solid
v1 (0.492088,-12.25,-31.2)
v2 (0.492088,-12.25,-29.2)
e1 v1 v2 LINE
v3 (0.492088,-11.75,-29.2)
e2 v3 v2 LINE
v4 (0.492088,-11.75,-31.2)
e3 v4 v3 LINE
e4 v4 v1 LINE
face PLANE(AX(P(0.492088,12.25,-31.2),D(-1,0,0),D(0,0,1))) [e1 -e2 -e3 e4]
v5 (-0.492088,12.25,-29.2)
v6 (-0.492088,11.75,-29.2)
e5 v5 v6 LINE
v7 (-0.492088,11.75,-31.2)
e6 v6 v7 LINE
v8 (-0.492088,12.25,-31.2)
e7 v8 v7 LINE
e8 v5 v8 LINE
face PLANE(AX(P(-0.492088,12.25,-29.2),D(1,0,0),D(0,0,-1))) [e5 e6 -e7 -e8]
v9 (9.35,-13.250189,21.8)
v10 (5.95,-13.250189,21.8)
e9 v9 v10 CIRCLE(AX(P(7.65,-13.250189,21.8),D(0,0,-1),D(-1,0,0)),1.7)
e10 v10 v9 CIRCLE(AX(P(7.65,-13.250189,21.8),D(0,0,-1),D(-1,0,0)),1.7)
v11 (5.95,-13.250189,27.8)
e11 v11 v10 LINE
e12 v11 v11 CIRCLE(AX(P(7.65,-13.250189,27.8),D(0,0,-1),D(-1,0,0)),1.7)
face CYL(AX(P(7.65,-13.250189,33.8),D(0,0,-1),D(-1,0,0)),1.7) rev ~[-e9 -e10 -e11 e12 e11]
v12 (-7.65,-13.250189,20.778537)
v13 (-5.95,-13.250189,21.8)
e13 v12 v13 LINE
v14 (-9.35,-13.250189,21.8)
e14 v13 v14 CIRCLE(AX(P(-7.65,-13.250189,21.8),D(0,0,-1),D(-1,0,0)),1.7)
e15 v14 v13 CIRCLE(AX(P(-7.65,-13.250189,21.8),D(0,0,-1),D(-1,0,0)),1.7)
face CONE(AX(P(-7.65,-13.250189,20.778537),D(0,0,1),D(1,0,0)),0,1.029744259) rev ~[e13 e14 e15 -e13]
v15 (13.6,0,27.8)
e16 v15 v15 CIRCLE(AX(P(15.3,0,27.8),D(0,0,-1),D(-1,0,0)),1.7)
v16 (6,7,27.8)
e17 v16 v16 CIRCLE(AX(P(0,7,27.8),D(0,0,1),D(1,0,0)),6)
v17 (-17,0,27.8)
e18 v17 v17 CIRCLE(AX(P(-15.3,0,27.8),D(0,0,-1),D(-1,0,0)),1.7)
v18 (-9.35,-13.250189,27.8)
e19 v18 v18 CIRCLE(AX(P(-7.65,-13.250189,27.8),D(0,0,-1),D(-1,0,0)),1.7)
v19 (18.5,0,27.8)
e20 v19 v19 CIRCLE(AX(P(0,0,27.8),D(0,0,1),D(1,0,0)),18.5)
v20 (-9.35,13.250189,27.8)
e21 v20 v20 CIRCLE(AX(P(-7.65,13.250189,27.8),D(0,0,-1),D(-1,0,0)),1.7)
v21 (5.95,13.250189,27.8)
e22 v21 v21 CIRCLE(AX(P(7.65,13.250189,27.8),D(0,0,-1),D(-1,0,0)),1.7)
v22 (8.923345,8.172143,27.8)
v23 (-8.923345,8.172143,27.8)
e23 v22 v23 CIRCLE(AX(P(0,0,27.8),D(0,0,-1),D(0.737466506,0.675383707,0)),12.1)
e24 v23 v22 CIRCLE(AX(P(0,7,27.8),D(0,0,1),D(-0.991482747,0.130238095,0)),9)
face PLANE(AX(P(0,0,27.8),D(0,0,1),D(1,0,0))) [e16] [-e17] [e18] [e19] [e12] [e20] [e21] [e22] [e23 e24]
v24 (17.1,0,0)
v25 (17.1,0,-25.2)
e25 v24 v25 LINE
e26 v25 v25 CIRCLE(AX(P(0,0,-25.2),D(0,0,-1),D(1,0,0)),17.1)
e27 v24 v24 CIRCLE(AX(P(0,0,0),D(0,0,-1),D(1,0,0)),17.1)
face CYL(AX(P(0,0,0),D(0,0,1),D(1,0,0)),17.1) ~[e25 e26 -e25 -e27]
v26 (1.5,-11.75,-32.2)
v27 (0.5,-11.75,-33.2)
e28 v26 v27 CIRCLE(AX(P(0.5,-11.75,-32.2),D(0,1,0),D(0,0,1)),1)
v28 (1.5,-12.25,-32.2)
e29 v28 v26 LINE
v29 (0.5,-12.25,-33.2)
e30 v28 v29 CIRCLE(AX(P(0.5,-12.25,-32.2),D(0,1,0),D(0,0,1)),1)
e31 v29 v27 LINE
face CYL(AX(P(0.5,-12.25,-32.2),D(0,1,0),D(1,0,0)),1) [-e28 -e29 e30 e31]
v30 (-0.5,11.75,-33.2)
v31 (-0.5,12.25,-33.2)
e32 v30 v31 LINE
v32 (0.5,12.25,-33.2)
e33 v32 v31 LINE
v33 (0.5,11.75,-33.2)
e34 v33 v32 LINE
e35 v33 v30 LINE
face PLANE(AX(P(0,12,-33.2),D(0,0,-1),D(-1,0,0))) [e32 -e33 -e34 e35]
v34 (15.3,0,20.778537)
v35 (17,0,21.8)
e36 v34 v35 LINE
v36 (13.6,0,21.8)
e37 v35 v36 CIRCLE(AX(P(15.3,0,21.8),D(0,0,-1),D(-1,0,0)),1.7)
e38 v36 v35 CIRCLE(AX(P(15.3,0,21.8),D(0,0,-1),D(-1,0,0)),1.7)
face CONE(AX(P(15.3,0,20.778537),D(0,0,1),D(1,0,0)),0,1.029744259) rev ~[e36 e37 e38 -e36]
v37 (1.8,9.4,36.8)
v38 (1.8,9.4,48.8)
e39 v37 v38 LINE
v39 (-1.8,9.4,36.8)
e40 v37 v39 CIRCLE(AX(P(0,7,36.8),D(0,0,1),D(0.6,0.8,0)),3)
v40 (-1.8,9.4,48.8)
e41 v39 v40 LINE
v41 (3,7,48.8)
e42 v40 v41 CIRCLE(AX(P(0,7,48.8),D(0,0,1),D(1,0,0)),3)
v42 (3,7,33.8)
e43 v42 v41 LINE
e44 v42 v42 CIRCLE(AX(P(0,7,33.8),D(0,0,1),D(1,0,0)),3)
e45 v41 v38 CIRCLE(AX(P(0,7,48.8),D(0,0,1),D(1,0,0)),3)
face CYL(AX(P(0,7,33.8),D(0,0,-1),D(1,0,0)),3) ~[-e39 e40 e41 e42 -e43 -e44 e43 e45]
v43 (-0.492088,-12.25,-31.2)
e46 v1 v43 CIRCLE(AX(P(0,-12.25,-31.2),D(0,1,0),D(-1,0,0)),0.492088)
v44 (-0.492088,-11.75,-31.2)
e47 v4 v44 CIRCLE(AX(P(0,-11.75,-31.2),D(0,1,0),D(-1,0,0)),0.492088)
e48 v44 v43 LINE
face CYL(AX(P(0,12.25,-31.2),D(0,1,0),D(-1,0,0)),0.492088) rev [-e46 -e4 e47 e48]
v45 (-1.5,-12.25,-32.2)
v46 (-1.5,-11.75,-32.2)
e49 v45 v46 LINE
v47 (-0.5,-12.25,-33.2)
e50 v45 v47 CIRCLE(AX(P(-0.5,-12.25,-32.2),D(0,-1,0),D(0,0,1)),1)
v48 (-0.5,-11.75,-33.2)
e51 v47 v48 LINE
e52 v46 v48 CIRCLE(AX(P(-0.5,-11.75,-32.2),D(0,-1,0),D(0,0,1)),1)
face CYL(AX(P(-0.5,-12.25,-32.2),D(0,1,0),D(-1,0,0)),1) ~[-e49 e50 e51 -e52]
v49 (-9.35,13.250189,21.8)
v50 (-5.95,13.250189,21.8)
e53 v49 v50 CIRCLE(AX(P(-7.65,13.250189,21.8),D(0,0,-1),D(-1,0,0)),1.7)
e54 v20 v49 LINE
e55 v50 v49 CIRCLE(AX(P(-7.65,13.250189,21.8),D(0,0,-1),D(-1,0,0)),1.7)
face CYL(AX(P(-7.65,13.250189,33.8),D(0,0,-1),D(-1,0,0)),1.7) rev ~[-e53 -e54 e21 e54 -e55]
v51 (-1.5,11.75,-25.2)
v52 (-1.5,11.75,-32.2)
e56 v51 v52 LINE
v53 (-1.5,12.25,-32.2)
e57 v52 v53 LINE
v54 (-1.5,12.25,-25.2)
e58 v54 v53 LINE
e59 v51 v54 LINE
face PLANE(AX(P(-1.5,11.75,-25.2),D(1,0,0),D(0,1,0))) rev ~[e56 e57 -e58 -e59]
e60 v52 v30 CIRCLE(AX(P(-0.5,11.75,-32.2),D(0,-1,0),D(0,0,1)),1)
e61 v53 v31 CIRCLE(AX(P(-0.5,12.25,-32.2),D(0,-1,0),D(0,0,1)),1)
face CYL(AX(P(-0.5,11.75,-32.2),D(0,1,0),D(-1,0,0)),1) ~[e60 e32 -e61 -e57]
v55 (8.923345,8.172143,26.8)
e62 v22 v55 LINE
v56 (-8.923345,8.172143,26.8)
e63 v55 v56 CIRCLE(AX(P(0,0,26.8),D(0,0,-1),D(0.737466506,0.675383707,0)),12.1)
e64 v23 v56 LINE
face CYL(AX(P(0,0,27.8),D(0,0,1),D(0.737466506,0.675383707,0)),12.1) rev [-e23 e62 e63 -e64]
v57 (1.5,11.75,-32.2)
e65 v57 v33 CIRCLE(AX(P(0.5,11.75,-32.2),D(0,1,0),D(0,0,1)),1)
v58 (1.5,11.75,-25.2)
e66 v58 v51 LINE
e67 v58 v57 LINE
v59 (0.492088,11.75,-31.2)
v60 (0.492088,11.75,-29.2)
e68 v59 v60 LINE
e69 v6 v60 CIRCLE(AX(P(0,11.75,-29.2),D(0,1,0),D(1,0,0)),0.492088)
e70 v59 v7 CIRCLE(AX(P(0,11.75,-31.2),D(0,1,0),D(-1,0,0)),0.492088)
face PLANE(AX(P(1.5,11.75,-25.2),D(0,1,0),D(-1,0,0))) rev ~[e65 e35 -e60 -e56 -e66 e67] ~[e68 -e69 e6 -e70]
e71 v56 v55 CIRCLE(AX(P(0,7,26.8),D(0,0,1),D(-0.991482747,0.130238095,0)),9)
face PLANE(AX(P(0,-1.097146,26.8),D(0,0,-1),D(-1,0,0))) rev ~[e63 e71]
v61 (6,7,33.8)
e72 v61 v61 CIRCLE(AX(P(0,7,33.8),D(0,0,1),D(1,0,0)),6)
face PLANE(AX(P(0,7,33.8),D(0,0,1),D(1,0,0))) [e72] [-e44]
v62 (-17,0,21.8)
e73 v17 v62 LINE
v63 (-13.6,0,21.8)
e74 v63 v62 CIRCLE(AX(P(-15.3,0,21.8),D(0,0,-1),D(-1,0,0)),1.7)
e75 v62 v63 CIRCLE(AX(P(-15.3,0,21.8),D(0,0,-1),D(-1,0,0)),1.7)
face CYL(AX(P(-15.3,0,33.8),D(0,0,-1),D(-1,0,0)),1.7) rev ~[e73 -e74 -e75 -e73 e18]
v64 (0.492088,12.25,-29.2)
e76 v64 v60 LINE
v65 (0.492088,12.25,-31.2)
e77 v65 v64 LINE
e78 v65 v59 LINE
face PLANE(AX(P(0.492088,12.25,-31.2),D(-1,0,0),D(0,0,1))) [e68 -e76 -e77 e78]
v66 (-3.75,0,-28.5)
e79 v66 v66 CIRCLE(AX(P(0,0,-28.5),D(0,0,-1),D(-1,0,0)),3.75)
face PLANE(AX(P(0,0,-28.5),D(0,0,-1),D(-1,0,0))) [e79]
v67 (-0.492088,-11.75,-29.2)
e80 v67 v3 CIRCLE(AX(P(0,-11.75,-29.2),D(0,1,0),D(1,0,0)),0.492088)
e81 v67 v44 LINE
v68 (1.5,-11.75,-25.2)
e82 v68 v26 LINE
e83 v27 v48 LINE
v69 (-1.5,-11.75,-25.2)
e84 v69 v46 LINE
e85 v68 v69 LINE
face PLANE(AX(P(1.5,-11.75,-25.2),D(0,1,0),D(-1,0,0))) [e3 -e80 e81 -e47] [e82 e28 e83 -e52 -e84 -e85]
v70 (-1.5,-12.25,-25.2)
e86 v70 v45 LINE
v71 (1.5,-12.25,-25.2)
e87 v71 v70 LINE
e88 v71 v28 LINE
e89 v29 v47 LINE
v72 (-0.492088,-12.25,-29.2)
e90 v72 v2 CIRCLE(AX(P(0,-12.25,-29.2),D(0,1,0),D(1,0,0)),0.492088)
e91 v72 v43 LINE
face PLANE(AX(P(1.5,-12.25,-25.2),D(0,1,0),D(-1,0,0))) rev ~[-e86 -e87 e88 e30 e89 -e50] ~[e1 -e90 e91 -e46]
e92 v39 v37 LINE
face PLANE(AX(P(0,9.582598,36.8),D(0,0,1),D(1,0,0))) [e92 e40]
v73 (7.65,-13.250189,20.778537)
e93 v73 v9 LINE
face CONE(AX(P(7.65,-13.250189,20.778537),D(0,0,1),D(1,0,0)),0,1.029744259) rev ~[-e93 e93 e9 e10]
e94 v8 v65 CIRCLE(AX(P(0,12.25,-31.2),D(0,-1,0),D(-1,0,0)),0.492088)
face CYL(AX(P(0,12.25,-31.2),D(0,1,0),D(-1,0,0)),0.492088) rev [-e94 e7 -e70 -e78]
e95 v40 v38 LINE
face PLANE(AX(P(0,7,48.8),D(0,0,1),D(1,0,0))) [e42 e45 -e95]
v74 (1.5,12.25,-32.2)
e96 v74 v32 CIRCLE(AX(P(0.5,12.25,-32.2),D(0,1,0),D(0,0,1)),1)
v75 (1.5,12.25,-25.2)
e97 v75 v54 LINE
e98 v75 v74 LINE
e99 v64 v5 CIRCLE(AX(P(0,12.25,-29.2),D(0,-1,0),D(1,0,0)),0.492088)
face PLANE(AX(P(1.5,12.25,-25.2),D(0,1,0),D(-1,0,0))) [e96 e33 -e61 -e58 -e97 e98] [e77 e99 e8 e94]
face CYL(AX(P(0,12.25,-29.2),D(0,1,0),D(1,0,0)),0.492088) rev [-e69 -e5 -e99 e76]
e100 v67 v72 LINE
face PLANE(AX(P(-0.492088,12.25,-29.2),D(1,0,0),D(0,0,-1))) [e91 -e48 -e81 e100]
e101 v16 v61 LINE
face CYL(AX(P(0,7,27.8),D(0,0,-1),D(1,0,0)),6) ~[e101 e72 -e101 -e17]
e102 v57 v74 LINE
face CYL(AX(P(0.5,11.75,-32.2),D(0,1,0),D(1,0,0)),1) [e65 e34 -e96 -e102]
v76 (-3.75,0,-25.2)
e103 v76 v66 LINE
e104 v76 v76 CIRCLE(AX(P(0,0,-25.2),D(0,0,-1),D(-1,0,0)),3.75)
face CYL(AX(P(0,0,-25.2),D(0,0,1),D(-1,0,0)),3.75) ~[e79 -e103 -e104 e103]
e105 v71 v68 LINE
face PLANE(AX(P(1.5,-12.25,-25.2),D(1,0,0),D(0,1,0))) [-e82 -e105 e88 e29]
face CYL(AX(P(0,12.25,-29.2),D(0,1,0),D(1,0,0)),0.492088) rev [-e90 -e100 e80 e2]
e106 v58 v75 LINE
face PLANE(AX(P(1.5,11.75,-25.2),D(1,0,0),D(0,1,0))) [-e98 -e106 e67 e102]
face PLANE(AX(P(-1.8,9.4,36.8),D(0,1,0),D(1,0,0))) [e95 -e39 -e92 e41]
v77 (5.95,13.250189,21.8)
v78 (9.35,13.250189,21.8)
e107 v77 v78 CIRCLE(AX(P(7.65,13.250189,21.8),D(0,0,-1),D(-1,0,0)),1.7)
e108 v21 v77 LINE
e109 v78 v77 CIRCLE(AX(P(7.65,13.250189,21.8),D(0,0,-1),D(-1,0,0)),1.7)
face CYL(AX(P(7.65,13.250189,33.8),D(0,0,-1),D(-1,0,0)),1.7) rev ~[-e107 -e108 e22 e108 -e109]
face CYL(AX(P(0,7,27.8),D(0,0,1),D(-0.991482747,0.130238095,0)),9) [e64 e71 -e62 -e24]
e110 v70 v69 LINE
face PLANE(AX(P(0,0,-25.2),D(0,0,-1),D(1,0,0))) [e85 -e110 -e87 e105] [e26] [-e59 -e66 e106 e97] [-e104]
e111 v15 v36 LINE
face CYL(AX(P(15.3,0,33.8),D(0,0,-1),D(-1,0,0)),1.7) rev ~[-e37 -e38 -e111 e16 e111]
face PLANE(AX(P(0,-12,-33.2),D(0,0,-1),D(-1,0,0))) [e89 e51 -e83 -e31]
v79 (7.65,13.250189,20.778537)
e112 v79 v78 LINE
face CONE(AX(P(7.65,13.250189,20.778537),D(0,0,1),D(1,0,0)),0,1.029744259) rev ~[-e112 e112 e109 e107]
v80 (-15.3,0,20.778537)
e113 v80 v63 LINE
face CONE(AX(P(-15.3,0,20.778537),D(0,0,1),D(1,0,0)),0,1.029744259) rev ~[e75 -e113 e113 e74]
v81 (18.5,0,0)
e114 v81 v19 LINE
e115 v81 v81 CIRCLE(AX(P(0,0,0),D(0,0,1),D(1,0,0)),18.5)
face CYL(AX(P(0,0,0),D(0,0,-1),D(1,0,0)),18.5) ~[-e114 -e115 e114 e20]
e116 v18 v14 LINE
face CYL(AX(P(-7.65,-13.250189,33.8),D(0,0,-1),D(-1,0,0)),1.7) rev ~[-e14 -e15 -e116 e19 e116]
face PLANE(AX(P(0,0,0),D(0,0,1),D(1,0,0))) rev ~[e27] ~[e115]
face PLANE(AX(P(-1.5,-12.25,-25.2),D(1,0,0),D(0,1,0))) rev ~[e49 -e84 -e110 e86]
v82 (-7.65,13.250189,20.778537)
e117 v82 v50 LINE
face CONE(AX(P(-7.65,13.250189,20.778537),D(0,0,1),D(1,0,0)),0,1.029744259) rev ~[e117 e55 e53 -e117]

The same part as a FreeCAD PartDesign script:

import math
import FreeCAD as App
import Part
import Sketcher
Q = App.Units.Quantity


def edges_at(feature, points):
    """Names of the edges that pass closest to the given points."""
    edges = feature.Shape.Edges
    near = lambda p: min(range(len(edges)), key=lambda i: edges[i].distToShape(Part.Vertex(*p))[0])
    return sorted({f"Edge{near(p) + 1}" for p in points})


def add_polygon(sketch, points):
    """Adds a closed chain of lines whose ends are joined by coincident constraints."""
    first, n = sketch.GeometryCount, len(points)
    for a, b in zip(points, points[1:] + points[:1]):
        sketch.addGeometry(Part.LineSegment(App.Vector(*a, 0), App.Vector(*b, 0)), False)
    for i in range(n):
        sketch.addConstraint(Sketcher.Constraint("Coincident", first + i, 2, first + (i + 1) % n, 1))

doc = App.newDocument("Part")
body = doc.addObject("PartDesign::Body", "Body")

# Sketch on XY plane
sketch1 = body.newObject("Sketcher::SketchObject", "Sketch")
sketch1.AttachmentSupport = (doc.getObject("XY_Plane"), [""])
sketch1.MapMode = "FlatFace"
sketch1.addGeometry(Part.Circle(App.Vector(0, 0, 0), App.Vector(0, 0, 1), 18.5), False)
sketch1.addConstraint([
    Sketcher.Constraint("Coincident", 0, 3, -1, 1),
    Sketcher.Constraint("Diameter", 0, Q("37 mm")),
])
pad1 = body.newObject("PartDesign::Pad", "Pad")
pad1.Profile = sketch1
pad1.Length = 27.8

# Sketch on XY plane
sketch2 = body.newObject("Sketcher::SketchObject", "Sketch001")
sketch2.AttachmentSupport = (doc.getObject("XY_Plane"), [""])
sketch2.MapMode = "FlatFace"
sketch2.addGeometry(Part.Circle(App.Vector(0, 0, 0), App.Vector(0, 0, 1), 17.1), False)
sketch2.addConstraint([
    Sketcher.Constraint("Coincident", 0, 3, -1, 1),
    Sketcher.Constraint("Diameter", 0, Q("34.2 mm")),
])
pad2 = body.newObject("PartDesign::Pad", "Pad001")
pad2.Profile = sketch2
pad2.Length = 25.2
pad2.Reversed = True

# Sketch on XY plane
sketch3 = body.newObject("Sketcher::SketchObject", "Sketch002")
sketch3.AttachmentSupport = (doc.getObject("XY_Plane"), [""])
sketch3.MapMode = "FlatFace"
sketch3.AttachmentOffset = App.Placement(App.Vector(0, 0, -25.2), App.Rotation())
sketch3.addGeometry(Part.Circle(App.Vector(0, 0, 0), App.Vector(0, 0, 1), 3.75), False)
sketch3.addConstraint([
    Sketcher.Constraint("Coincident", 0, 3, -1, 1),
    Sketcher.Constraint("Diameter", 0, Q("7.5 mm")),
])
pad3 = body.newObject("PartDesign::Pad", "Pad002")
pad3.Profile = sketch3
pad3.Length = 3.3
pad3.Reversed = True

# Sketch on XY plane
sketch4 = body.newObject("Sketcher::SketchObject", "Sketch003")
sketch4.AttachmentSupport = (doc.getObject("XY_Plane"), [""])
sketch4.MapMode = "FlatFace"
sketch4.AttachmentOffset = App.Placement(App.Vector(0, 0, 27.8), App.Rotation())
sketch4.addGeometry(Part.Circle(App.Vector(0, 7, 0), App.Vector(0, 0, 1), 6), False)
sketch4.addConstraint([
    Sketcher.Constraint("PointOnObject", 0, 3, -2),
    Sketcher.Constraint("Diameter", 0, Q("12 mm")),
    Sketcher.Constraint("DistanceY", -1, 1, 0, 3, Q("7 mm")),
])
pad4 = body.newObject("PartDesign::Pad", "Pad003")
pad4.Profile = sketch4
pad4.Length = 6

# Sketch on XY plane
sketch5 = body.newObject("Sketcher::SketchObject", "Sketch004")
sketch5.AttachmentSupport = (doc.getObject("XY_Plane"), [""])
sketch5.MapMode = "FlatFace"
sketch5.AttachmentOffset = App.Placement(App.Vector(0, 0, 33.8), App.Rotation())
sketch5.addGeometry(Part.Circle(App.Vector(0, 7, 0), App.Vector(0, 0, 1), 3), False)
sketch5.addConstraint([
    Sketcher.Constraint("PointOnObject", 0, 3, -2),
    Sketcher.Constraint("Diameter", 0, Q("6 mm")),
    Sketcher.Constraint("DistanceY", -1, 1, 0, 3, Q("7 mm")),
])
pad5 = body.newObject("PartDesign::Pad", "Pad004")
pad5.Profile = sketch5
pad5.Length = 15

# Sketch on XY plane
sketch6 = body.newObject("Sketcher::SketchObject", "Sketch005")
sketch6.AttachmentSupport = (doc.getObject("XY_Plane"), [""])
sketch6.MapMode = "FlatFace"
sketch6.AttachmentOffset = App.Placement(App.Vector(0, 0, 36.8), App.Rotation())
sketch6.addGeometry([
    Part.LineSegment(App.Vector(-1.8, 9.4, 0), App.Vector(1.8, 9.4, 0)),
    Part.ArcOfCircle(Part.Circle(App.Vector(0, 7, 0), App.Vector(0, 0, 1), 3), math.radians(53.130102), math.radians(126.869898)),
], False)
sketch6.addConstraint([
    Sketcher.Constraint("Coincident", 0, 1, 1, 2),
    Sketcher.Constraint("Coincident", 1, 1, 0, 2),
    Sketcher.Constraint("Horizontal", 0),
    Sketcher.Constraint("PointOnObject", 1, 3, -2),
    Sketcher.Constraint("Radius", 1, Q("3 mm")),
    Sketcher.Constraint("DistanceX", 0, 1, 0, 2, Q("3.6 mm")),
    Sketcher.Constraint("DistanceY", -1, 1, 1, 3, Q("7 mm")),
])
pocket1 = body.newObject("PartDesign::Pocket", "Pocket")
pocket1.Profile = sketch6
pocket1.Length = 12
pocket1.Reversed = True

# Sketch on XY plane
sketch7 = body.newObject("Sketcher::SketchObject", "Sketch006")
sketch7.AttachmentSupport = (doc.getObject("XY_Plane"), [""])
sketch7.MapMode = "FlatFace"
sketch7.AttachmentOffset = App.Placement(App.Vector(0, 0, 27.8), App.Rotation())
sketch7.addGeometry([
    Part.ArcOfCircle(Part.Circle(App.Vector(0, 0, 0), App.Vector(0, 0, 1), 12.1), math.radians(137.516046), math.radians(402.483954)),
    Part.ArcOfCircle(Part.Circle(App.Vector(0, 7, 0), App.Vector(0, 0, 1), 9), math.radians(172.516649), math.radians(367.483351)),
], False)
sketch7.addConstraint([
    Sketcher.Constraint("Coincident", 0, 1, 1, 1),
    Sketcher.Constraint("Coincident", 1, 2, 0, 2),
    Sketcher.Constraint("Coincident", 0, 3, -1, 1),
    Sketcher.Constraint("PointOnObject", 1, 3, -2),
    Sketcher.Constraint("Radius", 1, Q("9 mm")),
    Sketcher.Constraint("Radius", 0, Q("12.1 mm")),
    Sketcher.Constraint("DistanceY", -1, 1, 1, 3, Q("7 mm")),
])
pocket2 = body.newObject("PartDesign::Pocket", "Pocket001")
pocket2.Profile = sketch7
pocket2.Length = 1

# Sketch on XY plane
sketch8 = body.newObject("Sketcher::SketchObject", "Sketch007")
sketch8.AttachmentSupport = (doc.getObject("XY_Plane"), [""])
sketch8.MapMode = "FlatFace"
sketch8.AttachmentOffset = App.Placement(App.Vector(0, 0, 27.8), App.Rotation())
sketch8.addGeometry([
    Part.Circle(App.Vector(7.65, -13.250189, 0), App.Vector(0, 0, 1), 1.7),  # 0
    Part.Circle(App.Vector(-7.65, -13.250189, 0), App.Vector(0, 0, 1), 1.7),  # 1
    Part.Circle(App.Vector(-15.3, 0, 0), App.Vector(0, 0, 1), 1.7),  # 2
    Part.Circle(App.Vector(-7.65, 13.250189, 0), App.Vector(0, 0, 1), 1.7),  # 3
    Part.Circle(App.Vector(15.3, 0, 0), App.Vector(0, 0, 1), 1.7),  # 4
    Part.Circle(App.Vector(7.65, 13.250189, 0), App.Vector(0, 0, 1), 1.7),  # 5
], False)
sketch8.addConstraint([
    Sketcher.Constraint("Equal", 0, 1),
    Sketcher.Constraint("Equal", 1, 2),
    Sketcher.Constraint("Equal", 2, 3),
    Sketcher.Constraint("Equal", 3, 4),
    Sketcher.Constraint("Equal", 4, 5),
    Sketcher.Constraint("Symmetric", 0, 3, 3, 3, -1, 1),
    Sketcher.Constraint("Symmetric", 2, 3, 4, 3, -1, 1),
    Sketcher.Constraint("Symmetric", 1, 3, 5, 3, -1, 1),
    Sketcher.Constraint("Symmetric", 0, 3, 1, 3, -2),
    Sketcher.Constraint("PointOnObject", 2, 3, -1),
    Sketcher.Constraint("Diameter", 0, Q("3.4 mm")),
    Sketcher.Constraint("DistanceX", 2, 3, -1, 1, Q("15.3 mm")),
    Sketcher.Constraint("DistanceX", 1, 3, 0, 3, Q("15.3 mm")),
    Sketcher.Constraint("DistanceY", 0, 3, -1, 1, Q("13.250189 mm")),
])
doc.recompute()
hole = body.newObject("PartDesign::Hole", "Hole")
hole.Profile = sketch8
hole.ThreadType = "None"
hole.Diameter = 3.4
hole.DepthType = "Dimension"
hole.Depth = 6
hole.DrillPoint = "Angled"
hole.DrillPointAngle = 118

# Sketch on XY plane
sketch9 = body.newObject("Sketcher::SketchObject", "Sketch008")
sketch9.AttachmentSupport = (doc.getObject("XY_Plane"), [""])
sketch9.MapMode = "FlatFace"
sketch9.AttachmentOffset = App.Placement(App.Vector(0, 0, -25.2), App.Rotation())
add_polygon(sketch9, [(1.5, 12.25), (1.5, 11.75), (-1.5, 11.75), (-1.5, 12.25)])  # lines 0-3
add_polygon(sketch9, [(1.5, -11.75), (1.5, -12.25), (-1.5, -12.25), (-1.5, -11.75)])  # lines 4-7
sketch9.addConstraint([
    Sketcher.Constraint("Vertical", 0),
    Sketcher.Constraint("Horizontal", 1),
    Sketcher.Constraint("Vertical", 2),
    Sketcher.Constraint("Horizontal", 3),
    Sketcher.Constraint("Vertical", 4),
    Sketcher.Constraint("Horizontal", 5),
    Sketcher.Constraint("Vertical", 6),
    Sketcher.Constraint("Horizontal", 7),
    Sketcher.Constraint("Symmetric", 2, 2, 4, 2, -1, 1),
    Sketcher.Constraint("Symmetric", 0, 2, 6, 2, -1, 1),
    Sketcher.Constraint("Vertical", 3, 2, 4, 2),
    Sketcher.Constraint("DistanceX", 1, 2, 1, 1, Q("3 mm")),
    Sketcher.Constraint("DistanceY", 0, 2, 0, 1, Q("0.5 mm")),
    Sketcher.Constraint("DistanceY", 4, 2, 0, 2, Q("24 mm")),
])
pad6 = body.newObject("PartDesign::Pad", "Pad005")
pad6.Profile = sketch9
pad6.Length = 8
pad6.Reversed = True
doc.recompute()

fillet = body.newObject("PartDesign::Fillet", "Fillet")
fillet.Base = (pad6, edges_at(pad6, [
    (-1.5, 12, -33.2),
    (1.5, 12, -33.2),
    (-1.5, -12, -33.2),
    (1.5, -12, -33.2),
]))
fillet.Radius = 1

# Sketch on XZ plane
sketch10 = body.newObject("Sketcher::SketchObject", "Sketch009")
sketch10.AttachmentSupport = (doc.getObject("XZ_Plane"), [""])
sketch10.MapMode = "FlatFace"
sketch10.AttachmentOffset = App.Placement(App.Vector(0, 0, -12.25), App.Rotation())
sketch10.addGeometry([
    Part.LineSegment(App.Vector(0.492088, -29.2, 0), App.Vector(0.492088, -31.2, 0)),
    Part.ArcOfCircle(Part.Circle(App.Vector(0, -31.2, 0), App.Vector(0, 0, 1), 0.492088), math.radians(180), math.radians(360)),
    Part.LineSegment(App.Vector(-0.492088, -31.2, 0), App.Vector(-0.492088, -29.2, 0)),
    Part.ArcOfCircle(Part.Circle(App.Vector(0, -29.2, 0), App.Vector(0, 0, 1), 0.492088), math.radians(0), math.radians(180)),
], False)
sketch10.addConstraint([
    Sketcher.Constraint("Tangent", 0, 2, 1, 2),
    Sketcher.Constraint("Tangent", 1, 1, 2, 1),
    Sketcher.Constraint("Tangent", 2, 2, 3, 2),
    Sketcher.Constraint("Tangent", 3, 1, 0, 1),
    Sketcher.Constraint("Vertical", 0),
    Sketcher.Constraint("Vertical", 2),
    Sketcher.Constraint("PointOnObject", 1, 3, -2),
    Sketcher.Constraint("DistanceY", 0, 2, 0, 1, Q("2 mm")),
    Sketcher.Constraint("DistanceY", 1, 3, -1, 1, Q("31.2 mm")),
    Sketcher.Constraint("Radius", 1, Q("0.492088 mm")),
])
pocket3 = body.newObject("PartDesign::Pocket", "Pocket002")
pocket3.Profile = sketch10
pocket3.Length = 28
pocket3.Reversed = True

doc.recompute()
